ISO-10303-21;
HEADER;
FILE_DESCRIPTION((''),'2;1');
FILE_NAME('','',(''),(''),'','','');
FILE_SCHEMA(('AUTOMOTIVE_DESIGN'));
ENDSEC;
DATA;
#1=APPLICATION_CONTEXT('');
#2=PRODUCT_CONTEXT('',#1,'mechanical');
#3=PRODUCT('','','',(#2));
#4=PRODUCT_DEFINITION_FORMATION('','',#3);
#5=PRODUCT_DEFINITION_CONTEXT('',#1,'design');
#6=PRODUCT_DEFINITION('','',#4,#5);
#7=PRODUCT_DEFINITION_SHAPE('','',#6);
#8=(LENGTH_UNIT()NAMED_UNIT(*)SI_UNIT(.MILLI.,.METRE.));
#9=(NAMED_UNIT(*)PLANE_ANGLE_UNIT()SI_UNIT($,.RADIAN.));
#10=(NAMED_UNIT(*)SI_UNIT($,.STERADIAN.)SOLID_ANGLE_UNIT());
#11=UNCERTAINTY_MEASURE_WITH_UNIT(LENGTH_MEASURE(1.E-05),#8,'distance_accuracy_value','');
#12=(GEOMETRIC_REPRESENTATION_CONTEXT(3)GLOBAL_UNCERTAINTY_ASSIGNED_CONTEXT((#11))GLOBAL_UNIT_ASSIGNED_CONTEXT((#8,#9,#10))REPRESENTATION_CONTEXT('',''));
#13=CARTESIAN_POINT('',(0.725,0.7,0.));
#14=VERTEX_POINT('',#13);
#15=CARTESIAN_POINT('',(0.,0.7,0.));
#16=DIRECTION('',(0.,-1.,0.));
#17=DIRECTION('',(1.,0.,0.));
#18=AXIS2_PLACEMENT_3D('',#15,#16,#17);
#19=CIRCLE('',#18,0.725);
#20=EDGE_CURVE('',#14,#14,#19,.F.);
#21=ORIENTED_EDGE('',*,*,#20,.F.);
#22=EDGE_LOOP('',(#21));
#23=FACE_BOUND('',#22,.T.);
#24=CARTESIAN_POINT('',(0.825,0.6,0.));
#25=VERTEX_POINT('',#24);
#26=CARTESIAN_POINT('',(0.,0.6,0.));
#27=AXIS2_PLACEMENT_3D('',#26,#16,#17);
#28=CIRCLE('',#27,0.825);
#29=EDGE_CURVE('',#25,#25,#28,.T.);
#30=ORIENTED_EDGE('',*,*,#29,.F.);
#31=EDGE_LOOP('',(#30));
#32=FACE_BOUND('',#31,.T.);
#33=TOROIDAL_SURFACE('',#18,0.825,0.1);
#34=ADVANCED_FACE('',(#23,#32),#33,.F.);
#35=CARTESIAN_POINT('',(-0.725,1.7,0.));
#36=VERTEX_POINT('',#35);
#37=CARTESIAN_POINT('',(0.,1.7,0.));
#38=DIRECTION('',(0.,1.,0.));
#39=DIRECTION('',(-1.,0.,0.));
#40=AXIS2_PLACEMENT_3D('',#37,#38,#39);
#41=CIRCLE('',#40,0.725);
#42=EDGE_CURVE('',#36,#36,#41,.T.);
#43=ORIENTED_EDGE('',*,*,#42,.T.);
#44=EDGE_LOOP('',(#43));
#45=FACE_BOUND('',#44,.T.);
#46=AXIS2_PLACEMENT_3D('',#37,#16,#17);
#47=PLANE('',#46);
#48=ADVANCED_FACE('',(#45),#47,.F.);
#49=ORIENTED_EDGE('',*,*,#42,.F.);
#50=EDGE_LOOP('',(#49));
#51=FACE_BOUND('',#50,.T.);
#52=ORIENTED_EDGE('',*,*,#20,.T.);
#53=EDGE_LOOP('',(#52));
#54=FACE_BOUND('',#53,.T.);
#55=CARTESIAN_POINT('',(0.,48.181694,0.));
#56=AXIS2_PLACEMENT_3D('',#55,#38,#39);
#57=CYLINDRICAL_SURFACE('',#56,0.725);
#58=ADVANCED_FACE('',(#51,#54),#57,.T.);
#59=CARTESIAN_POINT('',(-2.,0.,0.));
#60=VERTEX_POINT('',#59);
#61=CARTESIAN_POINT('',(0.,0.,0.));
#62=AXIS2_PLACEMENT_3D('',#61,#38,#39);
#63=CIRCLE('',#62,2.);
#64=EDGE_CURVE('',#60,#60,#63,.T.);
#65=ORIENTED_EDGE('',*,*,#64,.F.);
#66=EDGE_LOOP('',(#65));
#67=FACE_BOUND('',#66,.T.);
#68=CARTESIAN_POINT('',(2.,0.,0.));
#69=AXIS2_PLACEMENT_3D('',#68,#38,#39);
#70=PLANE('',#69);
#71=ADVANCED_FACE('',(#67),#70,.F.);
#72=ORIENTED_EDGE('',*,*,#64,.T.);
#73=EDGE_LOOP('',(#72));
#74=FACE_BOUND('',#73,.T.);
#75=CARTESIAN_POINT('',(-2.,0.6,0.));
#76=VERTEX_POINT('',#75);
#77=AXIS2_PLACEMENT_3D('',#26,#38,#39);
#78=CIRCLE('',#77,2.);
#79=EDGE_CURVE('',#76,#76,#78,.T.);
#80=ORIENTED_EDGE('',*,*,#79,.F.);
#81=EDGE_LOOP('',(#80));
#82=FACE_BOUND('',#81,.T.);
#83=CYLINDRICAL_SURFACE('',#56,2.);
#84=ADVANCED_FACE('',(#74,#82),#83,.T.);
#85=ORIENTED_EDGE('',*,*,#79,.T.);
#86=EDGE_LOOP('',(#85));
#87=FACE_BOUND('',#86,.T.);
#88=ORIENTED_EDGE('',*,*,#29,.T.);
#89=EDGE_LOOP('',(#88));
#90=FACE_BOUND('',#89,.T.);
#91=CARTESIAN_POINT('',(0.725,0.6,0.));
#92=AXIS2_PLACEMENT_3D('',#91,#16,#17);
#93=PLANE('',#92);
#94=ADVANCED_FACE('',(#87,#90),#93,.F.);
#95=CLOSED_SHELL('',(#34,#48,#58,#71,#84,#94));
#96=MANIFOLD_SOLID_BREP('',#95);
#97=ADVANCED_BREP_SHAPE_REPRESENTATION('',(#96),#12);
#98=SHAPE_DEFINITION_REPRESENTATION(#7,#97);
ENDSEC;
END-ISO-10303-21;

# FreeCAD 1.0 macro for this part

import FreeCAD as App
import Part
import Sketcher
from FreeCAD import Vector


def edges_at(feature, points):
    """Names of the edges that pass closest to the given points."""
    edges = feature.Shape.Edges
    near = lambda p: min(range(len(edges)), key=lambda i: edges[i].distToShape(Part.Vertex(*p))[0])
    return sorted({f"Edge{near(p) + 1}" for p in points})

doc = App.newDocument("Part")
body = doc.addObject("PartDesign::Body", "Body")

# Sketch on XY plane
sketch1 = body.newObject("Sketcher::SketchObject", "Sketch")
sketch1.AttachmentSupport = (doc.getObject("XY_Plane"), [""])
sketch1.MapMode = "FlatFace"
sketch1.addGeometry([
    Part.LineSegment(Vector(0.7, 1.7, 0), Vector(0, 1.7, 0)),  # 0
    Part.LineSegment(Vector(0, 1.7, 0), Vector(0, 0, 0)),  # 1
    Part.LineSegment(Vector(0, 0, 0), Vector(2, 0, 0)),  # 2
    Part.LineSegment(Vector(2, 0, 0), Vector(2, 0.6, 0)),  # 3
    Part.LineSegment(Vector(2, 0.6, 0), Vector(0.7, 0.6, 0)),  # 4
    Part.LineSegment(Vector(0.7, 0.6, 0), Vector(0.7, 1.7, 0)),  # 5
], False)
sketch1.addConstraint([
    Sketcher.Constraint("Coincident", 0, 2, 1, 1),
    Sketcher.Constraint("Coincident", 1, 2, 2, 1),
    Sketcher.Constraint("Coincident", 2, 2, 3, 1),
    Sketcher.Constraint("Coincident", 3, 2, 4, 1),
    Sketcher.Constraint("Coincident", 4, 2, 5, 1),
    Sketcher.Constraint("Coincident", 5, 2, 0, 1),
    Sketcher.Constraint("Horizontal", 0),
    Sketcher.Constraint("Vertical", 1),
    Sketcher.Constraint("Horizontal", 2),
    Sketcher.Constraint("Vertical", 3),
    Sketcher.Constraint("Horizontal", 4),
    Sketcher.Constraint("Vertical", 5),
    Sketcher.Constraint("Coincident", 1, 2, -1, 1),
    Sketcher.Constraint("DistanceX", 2, 1, 2, 2, 2.0),
    Sketcher.Constraint("DistanceY", 1, 2, 1, 1, 1.7),
    Sketcher.Constraint("DistanceY", 3, 1, 3, 2, 0.6),
    Sketcher.Constraint("DistanceX", 0, 2, 0, 1, 0.725),
])
revolution = body.newObject("PartDesign::Revolution", "Revolution")
revolution.Profile = sketch1
revolution.ReferenceAxis = (sketch1, ["V_Axis"])
revolution.Angle = 360
doc.recompute()

fillet = body.newObject("PartDesign::Fillet", "Fillet")
fillet.Base = (revolution, edges_at(revolution, [(0.725, 0.6, 0)]))
fillet.Radius = 0.1

doc.recompute()
